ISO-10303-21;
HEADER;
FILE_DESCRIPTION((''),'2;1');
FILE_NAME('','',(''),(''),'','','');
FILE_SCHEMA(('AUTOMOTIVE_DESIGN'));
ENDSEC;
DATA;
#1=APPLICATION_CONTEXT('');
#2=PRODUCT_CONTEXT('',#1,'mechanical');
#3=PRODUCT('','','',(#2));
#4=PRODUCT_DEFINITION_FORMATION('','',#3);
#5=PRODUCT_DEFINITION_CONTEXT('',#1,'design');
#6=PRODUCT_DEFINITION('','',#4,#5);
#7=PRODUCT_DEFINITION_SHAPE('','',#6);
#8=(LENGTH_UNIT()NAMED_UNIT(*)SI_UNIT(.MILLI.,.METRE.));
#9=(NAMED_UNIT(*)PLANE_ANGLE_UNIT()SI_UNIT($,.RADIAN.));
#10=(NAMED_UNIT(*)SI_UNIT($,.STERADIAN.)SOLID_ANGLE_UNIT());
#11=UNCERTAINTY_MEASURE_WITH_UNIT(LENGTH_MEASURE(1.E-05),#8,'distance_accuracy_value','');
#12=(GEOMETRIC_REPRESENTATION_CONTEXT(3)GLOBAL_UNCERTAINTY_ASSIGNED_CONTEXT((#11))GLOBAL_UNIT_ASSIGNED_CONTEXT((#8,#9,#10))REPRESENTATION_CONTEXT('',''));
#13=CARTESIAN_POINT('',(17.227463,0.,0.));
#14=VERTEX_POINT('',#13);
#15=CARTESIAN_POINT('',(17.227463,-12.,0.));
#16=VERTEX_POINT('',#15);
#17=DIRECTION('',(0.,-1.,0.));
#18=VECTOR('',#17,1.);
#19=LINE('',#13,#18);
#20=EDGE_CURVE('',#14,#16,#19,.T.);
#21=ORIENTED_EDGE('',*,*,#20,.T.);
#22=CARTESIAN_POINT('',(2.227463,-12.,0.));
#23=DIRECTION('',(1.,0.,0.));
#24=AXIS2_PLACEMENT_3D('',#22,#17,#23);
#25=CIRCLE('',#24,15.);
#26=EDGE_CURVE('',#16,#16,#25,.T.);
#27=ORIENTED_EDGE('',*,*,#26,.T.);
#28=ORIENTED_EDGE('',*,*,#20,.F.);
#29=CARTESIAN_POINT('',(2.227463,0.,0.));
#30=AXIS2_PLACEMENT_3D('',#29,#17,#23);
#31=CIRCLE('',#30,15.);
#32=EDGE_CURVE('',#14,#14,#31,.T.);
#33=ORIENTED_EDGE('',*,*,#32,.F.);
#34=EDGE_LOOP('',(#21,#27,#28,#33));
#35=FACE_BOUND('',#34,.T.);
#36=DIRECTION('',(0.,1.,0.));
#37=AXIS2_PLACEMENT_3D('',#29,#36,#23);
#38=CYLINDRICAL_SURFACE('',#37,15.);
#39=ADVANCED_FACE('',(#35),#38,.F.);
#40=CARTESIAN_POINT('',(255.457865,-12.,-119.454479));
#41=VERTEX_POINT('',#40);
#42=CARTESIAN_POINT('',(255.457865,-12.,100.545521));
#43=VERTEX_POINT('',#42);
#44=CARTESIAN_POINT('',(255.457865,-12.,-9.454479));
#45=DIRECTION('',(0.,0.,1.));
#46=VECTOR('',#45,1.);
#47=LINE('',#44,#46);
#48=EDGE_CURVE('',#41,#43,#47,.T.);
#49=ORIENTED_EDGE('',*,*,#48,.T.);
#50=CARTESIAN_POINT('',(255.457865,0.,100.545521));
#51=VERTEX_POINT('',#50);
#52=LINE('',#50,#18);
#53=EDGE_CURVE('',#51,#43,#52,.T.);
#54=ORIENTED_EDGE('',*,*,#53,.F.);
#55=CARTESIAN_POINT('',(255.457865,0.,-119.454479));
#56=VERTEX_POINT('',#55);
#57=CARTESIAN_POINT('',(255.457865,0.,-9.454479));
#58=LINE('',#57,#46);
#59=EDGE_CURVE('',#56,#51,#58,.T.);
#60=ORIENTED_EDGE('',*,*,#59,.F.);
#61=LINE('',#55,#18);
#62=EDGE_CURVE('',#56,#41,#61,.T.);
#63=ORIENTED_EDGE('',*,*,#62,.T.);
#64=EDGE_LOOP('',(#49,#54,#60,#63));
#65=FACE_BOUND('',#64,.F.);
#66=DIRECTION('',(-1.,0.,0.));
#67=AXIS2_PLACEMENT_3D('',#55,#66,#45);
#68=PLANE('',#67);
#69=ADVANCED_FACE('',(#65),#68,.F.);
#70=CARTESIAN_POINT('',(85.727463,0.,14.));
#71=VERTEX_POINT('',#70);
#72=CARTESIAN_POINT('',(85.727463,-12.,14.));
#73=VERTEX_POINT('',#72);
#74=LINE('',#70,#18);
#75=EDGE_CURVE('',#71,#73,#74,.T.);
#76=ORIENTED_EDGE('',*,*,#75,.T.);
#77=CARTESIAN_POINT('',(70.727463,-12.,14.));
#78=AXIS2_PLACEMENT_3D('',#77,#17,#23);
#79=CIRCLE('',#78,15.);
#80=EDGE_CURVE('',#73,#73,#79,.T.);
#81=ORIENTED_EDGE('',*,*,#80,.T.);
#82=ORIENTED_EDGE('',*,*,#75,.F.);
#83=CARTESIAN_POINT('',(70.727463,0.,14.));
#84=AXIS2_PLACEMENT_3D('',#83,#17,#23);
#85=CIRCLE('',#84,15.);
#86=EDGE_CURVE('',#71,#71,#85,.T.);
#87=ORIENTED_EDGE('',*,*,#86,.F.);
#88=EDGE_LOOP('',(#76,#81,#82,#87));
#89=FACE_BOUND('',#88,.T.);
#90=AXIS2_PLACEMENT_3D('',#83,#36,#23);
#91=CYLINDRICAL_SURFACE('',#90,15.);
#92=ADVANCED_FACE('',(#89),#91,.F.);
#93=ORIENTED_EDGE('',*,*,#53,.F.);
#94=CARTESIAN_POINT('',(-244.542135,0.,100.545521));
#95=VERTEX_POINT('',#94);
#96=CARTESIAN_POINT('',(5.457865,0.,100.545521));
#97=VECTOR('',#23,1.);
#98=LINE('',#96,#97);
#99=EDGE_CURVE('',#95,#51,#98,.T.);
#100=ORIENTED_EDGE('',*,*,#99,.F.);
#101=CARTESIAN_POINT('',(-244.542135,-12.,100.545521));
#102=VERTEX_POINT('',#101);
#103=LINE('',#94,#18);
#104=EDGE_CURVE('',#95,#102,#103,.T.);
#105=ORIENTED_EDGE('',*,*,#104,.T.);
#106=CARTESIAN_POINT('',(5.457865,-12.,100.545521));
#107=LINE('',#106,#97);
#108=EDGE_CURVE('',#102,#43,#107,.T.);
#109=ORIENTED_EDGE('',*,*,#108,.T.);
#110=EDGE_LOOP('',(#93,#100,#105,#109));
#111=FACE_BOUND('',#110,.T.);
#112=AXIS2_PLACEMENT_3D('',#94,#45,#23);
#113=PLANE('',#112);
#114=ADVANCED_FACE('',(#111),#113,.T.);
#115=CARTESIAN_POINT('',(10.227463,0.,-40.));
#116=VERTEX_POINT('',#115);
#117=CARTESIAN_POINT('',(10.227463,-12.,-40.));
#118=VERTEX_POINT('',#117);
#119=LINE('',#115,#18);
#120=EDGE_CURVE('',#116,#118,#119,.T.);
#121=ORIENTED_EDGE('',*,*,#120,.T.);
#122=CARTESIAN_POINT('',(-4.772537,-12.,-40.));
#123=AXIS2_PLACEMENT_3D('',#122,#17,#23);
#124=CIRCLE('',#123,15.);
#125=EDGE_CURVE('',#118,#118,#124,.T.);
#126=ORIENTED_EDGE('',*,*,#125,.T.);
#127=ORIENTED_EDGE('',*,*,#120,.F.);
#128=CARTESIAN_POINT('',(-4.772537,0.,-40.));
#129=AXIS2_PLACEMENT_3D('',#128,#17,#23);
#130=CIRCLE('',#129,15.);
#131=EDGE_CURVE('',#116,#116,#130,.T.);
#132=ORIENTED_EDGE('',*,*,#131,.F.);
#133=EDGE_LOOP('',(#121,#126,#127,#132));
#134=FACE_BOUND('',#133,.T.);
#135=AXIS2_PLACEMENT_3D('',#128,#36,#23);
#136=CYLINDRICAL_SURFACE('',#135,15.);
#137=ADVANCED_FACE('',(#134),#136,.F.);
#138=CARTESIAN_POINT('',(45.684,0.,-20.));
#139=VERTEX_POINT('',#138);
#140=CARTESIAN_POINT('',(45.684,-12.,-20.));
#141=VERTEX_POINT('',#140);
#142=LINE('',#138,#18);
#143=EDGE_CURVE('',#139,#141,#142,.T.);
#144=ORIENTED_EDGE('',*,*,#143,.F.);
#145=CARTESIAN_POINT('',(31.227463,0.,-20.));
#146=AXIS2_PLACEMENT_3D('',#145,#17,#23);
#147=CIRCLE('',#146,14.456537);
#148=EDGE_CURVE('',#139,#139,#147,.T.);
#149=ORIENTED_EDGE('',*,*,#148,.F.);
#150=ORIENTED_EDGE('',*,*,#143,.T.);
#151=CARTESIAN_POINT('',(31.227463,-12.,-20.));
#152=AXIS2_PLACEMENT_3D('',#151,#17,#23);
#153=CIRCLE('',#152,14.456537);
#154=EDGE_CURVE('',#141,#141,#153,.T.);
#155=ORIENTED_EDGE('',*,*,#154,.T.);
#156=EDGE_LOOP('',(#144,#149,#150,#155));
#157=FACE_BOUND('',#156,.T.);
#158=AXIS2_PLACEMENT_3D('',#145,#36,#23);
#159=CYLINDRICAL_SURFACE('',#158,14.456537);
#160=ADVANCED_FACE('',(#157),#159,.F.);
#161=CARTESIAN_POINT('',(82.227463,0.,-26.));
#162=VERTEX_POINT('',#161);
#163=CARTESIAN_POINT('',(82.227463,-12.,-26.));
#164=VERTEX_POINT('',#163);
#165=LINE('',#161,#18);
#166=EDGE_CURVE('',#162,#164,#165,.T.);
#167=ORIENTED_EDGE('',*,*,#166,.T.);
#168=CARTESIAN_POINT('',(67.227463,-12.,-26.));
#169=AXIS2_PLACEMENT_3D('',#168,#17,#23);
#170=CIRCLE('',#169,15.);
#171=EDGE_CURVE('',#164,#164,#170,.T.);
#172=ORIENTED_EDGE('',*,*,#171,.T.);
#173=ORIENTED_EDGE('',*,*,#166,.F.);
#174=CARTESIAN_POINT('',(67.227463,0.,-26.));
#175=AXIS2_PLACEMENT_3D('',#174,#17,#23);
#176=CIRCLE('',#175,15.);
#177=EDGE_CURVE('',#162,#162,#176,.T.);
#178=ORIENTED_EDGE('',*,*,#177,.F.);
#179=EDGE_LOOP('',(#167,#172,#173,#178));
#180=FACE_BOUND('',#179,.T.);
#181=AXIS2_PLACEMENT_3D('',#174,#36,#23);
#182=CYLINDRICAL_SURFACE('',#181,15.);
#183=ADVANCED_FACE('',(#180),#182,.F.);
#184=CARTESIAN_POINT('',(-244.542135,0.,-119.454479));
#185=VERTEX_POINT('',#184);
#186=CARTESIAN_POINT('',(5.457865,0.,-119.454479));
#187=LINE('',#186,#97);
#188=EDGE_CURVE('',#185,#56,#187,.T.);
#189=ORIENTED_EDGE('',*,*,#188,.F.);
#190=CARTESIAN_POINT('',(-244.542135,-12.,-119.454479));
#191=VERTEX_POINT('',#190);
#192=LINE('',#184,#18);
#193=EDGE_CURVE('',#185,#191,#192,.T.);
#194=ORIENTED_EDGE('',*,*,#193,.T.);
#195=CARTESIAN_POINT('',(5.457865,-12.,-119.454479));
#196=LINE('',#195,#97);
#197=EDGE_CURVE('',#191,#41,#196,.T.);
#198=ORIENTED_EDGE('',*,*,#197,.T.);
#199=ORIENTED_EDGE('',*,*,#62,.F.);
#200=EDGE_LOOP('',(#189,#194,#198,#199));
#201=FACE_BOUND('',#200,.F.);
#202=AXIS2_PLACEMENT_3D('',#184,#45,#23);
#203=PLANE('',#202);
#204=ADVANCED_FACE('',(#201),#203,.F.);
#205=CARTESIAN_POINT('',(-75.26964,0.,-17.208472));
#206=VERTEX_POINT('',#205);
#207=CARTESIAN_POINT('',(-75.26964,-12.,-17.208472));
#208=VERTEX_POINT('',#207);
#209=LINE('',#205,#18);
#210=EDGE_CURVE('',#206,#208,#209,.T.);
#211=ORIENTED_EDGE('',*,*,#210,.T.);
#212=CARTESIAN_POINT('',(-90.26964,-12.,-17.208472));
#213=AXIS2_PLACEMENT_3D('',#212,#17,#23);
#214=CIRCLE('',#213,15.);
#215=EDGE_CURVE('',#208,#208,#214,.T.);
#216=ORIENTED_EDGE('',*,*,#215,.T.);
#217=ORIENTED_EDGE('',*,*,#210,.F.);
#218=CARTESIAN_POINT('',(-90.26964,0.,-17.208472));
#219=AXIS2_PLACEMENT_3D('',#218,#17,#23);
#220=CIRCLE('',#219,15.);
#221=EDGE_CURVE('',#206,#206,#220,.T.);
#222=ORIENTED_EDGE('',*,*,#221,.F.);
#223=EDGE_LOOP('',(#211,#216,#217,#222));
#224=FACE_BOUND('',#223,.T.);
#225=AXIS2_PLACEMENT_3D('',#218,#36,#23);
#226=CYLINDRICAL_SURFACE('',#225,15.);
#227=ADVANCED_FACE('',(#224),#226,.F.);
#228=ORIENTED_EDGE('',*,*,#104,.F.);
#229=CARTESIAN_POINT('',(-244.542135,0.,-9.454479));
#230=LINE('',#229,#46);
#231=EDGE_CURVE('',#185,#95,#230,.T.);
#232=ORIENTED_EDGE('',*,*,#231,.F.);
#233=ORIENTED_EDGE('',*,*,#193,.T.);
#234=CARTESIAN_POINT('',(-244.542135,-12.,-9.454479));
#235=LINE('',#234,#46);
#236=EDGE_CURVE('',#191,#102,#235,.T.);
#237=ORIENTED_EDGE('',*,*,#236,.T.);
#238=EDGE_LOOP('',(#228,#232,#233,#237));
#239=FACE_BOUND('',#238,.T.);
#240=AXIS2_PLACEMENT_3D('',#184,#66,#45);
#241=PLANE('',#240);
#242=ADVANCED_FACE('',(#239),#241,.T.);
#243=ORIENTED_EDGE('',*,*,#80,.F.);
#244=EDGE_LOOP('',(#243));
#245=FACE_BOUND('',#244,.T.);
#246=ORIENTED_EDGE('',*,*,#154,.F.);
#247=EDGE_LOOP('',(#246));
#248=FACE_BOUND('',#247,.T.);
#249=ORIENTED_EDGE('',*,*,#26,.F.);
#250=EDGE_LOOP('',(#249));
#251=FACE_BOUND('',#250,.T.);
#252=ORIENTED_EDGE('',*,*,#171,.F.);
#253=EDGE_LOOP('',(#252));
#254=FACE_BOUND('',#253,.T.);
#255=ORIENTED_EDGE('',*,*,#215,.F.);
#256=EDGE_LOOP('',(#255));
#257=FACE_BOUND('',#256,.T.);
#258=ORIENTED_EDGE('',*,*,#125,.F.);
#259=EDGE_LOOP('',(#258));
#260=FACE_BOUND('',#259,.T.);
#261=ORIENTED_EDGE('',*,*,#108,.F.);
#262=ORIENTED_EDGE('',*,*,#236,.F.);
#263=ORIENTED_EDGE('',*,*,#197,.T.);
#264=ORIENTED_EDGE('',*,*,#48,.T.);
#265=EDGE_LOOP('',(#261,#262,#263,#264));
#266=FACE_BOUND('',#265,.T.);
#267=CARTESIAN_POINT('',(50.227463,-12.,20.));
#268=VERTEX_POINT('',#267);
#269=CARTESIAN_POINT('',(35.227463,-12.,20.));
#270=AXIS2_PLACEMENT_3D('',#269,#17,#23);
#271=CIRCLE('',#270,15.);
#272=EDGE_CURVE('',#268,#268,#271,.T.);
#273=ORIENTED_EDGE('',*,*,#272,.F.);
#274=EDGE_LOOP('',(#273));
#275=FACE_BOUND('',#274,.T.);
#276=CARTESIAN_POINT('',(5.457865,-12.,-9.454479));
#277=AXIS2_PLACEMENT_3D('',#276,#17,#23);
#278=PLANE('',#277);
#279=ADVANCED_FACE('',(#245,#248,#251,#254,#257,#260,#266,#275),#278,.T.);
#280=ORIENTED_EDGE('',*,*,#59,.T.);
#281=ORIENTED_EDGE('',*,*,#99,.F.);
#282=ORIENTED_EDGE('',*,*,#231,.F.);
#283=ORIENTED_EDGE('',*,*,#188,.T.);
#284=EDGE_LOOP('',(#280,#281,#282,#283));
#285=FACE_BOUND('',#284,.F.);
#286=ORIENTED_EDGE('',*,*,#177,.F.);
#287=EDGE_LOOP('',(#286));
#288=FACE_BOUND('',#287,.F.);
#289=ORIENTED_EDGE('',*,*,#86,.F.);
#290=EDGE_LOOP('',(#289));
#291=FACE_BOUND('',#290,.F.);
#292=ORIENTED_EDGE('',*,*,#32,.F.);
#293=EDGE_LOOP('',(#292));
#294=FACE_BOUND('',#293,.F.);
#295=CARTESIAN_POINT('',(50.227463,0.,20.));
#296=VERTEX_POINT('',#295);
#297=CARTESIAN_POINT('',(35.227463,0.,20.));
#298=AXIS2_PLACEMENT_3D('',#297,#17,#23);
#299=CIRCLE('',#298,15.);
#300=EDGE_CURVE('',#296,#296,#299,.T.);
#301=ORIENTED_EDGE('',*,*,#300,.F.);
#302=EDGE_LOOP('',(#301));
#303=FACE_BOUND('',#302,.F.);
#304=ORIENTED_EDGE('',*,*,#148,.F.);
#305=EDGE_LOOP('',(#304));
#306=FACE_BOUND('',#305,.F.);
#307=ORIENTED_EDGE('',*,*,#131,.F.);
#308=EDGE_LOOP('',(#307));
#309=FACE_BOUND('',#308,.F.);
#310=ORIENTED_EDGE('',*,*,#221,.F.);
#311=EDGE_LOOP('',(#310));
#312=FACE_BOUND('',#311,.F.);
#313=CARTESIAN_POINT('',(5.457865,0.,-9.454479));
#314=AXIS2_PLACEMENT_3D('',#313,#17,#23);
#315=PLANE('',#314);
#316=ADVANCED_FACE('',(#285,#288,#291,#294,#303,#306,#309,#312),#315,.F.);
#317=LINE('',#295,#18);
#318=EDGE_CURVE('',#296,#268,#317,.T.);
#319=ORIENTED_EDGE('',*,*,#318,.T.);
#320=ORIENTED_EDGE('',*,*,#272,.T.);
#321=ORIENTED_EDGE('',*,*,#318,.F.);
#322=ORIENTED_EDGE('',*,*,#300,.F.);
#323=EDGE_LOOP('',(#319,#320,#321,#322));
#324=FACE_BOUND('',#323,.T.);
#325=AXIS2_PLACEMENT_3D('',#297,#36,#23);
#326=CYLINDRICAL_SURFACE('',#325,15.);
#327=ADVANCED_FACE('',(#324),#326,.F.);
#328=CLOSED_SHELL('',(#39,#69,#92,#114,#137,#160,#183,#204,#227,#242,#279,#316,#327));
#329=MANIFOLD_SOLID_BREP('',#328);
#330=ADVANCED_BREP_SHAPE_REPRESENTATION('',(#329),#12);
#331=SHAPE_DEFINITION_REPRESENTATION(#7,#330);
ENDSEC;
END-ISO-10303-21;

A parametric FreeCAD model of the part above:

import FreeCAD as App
import Part
import Sketcher
from FreeCAD import Vector

doc = App.newDocument("Part")
params = doc.addObject("Spreadsheet::Sheet", "Params")
for row, (alias, value) in enumerate([
    ("sketch1_diameter", "30 mm"),
    ("sketch1_width", "500 mm"),
    ("sketch1_height", "220 mm"),
    ("pad1_length", "12 mm"),
], start=1):
    params.set(f"A{row}", alias)
    params.set(f"B{row}", "=" + value)
    params.setAlias(f"B{row}", alias)

body = doc.addObject("PartDesign::Body", "Body")

# Sketch on XZ plane
sketch1 = doc.addObject("Sketcher::SketchObject", "Sketch")
body.addObject(sketch1)
sketch1.AttachmentSupport = (doc.XZ_Plane, [""])
sketch1.MapMode = "FlatFace"
sketch1.addGeometry([
    Part.LineSegment(Vector(-245, 101, 0), Vector(-245, -119, 0)),  # 0
    Part.LineSegment(Vector(-245, -119, 0), Vector(255, -119, 0)),  # 1
    Part.LineSegment(Vector(255, -119, 0), Vector(255, 101, 0)),  # 2
    Part.LineSegment(Vector(255, 101, 0), Vector(-245, 101, 0)),  # 3
    Part.Circle(Vector(-90, -17, 0), Vector(0, 0, 1), 15),  # 4
    Part.Circle(Vector(-5, -40, 0), Vector(0, 0, 1), 15),  # 5
    Part.Circle(Vector(31, -20, 0), Vector(0, 0, 1), 14),  # 6
    Part.Circle(Vector(67, -26, 0), Vector(0, 0, 1), 15),  # 7
    Part.Circle(Vector(2, 0, 0), Vector(0, 0, 1), 15),  # 8
    Part.Circle(Vector(35, 20, 0), Vector(0, 0, 1), 15),  # 9
    Part.Circle(Vector(71, 14, 0), Vector(0, 0, 1), 15),  # 10
], False)
sketch1.addConstraint([
    Sketcher.Constraint("Coincident", 0, 2, 1, 1),
    Sketcher.Constraint("Coincident", 1, 2, 2, 1),
    Sketcher.Constraint("Coincident", 2, 2, 3, 1),
    Sketcher.Constraint("Coincident", 3, 2, 0, 1),
    Sketcher.Constraint("Vertical", 0),
    Sketcher.Constraint("Horizontal", 1),
    Sketcher.Constraint("Vertical", 2),
    Sketcher.Constraint("Horizontal", 3),
    Sketcher.Constraint("Equal", 4, 5),
    Sketcher.Constraint("Equal", 5, 7),
    Sketcher.Constraint("Equal", 7, 8),
    Sketcher.Constraint("Equal", 8, 9),
    Sketcher.Constraint("Equal", 9, 10),
    Sketcher.Constraint("PointOnObject", 8, 3, -1),
    Sketcher.Constraint("Diameter", 4, 30.0),
    Sketcher.Constraint("DistanceX", 1, 1, 1, 2, 500.0),
    Sketcher.Constraint("DistanceY", 0, 2, 0, 1, 220.0),
    Sketcher.Constraint("DistanceY", 5, 3, -1, 1, 40.0),
    Sketcher.Constraint("DistanceY", 6, 3, -1, 1, 20.0),
    Sketcher.Constraint("DistanceY", 7, 3, -1, 1, 26.0),
    Sketcher.Constraint("DistanceY", -1, 1, 9, 3, 20.0),
    Sketcher.Constraint("DistanceY", -1, 1, 10, 3, 14.0),
    Sketcher.Constraint("DistanceX", 5, 3, 6, 3, 36.0),
    Sketcher.Constraint("DistanceX", 6, 3, 7, 3, 36.0),
    Sketcher.Constraint("DistanceX", 8, 3, 6, 3, 29.0),
    Sketcher.Constraint("DistanceX", 8, 3, 9, 3, 33.0),
    Sketcher.Constraint("DistanceX", 9, 3, 10, 3, 35.5),
    Sketcher.Constraint("Diameter", 6, 28.913074),
    Sketcher.Constraint("DistanceX", 0, 2, 5, 3, 239.769598),
    Sketcher.Constraint("DistanceX", 4, 3, -1, 1, 90.26964),
    Sketcher.Constraint("DistanceY", 0, 2, -1, 1, 119.454479),
    Sketcher.Constraint("DistanceY", 4, 3, -1, 1, 17.208472),
    Sketcher.Constraint("DistanceX", 5, 3, -1, 1, 4.772537),
])
sketch1.setExpression("Constraints[14]", "Params.sketch1_diameter")
sketch1.setExpression("Constraints[15]", "Params.sketch1_width")
sketch1.setExpression("Constraints[16]", "Params.sketch1_height")
pad1 = doc.addObject("PartDesign::Pad", "Pad")
body.addObject(pad1)
pad1.Profile = sketch1
pad1.setExpression("Length", "Params.pad1_length")

doc.recompute()
